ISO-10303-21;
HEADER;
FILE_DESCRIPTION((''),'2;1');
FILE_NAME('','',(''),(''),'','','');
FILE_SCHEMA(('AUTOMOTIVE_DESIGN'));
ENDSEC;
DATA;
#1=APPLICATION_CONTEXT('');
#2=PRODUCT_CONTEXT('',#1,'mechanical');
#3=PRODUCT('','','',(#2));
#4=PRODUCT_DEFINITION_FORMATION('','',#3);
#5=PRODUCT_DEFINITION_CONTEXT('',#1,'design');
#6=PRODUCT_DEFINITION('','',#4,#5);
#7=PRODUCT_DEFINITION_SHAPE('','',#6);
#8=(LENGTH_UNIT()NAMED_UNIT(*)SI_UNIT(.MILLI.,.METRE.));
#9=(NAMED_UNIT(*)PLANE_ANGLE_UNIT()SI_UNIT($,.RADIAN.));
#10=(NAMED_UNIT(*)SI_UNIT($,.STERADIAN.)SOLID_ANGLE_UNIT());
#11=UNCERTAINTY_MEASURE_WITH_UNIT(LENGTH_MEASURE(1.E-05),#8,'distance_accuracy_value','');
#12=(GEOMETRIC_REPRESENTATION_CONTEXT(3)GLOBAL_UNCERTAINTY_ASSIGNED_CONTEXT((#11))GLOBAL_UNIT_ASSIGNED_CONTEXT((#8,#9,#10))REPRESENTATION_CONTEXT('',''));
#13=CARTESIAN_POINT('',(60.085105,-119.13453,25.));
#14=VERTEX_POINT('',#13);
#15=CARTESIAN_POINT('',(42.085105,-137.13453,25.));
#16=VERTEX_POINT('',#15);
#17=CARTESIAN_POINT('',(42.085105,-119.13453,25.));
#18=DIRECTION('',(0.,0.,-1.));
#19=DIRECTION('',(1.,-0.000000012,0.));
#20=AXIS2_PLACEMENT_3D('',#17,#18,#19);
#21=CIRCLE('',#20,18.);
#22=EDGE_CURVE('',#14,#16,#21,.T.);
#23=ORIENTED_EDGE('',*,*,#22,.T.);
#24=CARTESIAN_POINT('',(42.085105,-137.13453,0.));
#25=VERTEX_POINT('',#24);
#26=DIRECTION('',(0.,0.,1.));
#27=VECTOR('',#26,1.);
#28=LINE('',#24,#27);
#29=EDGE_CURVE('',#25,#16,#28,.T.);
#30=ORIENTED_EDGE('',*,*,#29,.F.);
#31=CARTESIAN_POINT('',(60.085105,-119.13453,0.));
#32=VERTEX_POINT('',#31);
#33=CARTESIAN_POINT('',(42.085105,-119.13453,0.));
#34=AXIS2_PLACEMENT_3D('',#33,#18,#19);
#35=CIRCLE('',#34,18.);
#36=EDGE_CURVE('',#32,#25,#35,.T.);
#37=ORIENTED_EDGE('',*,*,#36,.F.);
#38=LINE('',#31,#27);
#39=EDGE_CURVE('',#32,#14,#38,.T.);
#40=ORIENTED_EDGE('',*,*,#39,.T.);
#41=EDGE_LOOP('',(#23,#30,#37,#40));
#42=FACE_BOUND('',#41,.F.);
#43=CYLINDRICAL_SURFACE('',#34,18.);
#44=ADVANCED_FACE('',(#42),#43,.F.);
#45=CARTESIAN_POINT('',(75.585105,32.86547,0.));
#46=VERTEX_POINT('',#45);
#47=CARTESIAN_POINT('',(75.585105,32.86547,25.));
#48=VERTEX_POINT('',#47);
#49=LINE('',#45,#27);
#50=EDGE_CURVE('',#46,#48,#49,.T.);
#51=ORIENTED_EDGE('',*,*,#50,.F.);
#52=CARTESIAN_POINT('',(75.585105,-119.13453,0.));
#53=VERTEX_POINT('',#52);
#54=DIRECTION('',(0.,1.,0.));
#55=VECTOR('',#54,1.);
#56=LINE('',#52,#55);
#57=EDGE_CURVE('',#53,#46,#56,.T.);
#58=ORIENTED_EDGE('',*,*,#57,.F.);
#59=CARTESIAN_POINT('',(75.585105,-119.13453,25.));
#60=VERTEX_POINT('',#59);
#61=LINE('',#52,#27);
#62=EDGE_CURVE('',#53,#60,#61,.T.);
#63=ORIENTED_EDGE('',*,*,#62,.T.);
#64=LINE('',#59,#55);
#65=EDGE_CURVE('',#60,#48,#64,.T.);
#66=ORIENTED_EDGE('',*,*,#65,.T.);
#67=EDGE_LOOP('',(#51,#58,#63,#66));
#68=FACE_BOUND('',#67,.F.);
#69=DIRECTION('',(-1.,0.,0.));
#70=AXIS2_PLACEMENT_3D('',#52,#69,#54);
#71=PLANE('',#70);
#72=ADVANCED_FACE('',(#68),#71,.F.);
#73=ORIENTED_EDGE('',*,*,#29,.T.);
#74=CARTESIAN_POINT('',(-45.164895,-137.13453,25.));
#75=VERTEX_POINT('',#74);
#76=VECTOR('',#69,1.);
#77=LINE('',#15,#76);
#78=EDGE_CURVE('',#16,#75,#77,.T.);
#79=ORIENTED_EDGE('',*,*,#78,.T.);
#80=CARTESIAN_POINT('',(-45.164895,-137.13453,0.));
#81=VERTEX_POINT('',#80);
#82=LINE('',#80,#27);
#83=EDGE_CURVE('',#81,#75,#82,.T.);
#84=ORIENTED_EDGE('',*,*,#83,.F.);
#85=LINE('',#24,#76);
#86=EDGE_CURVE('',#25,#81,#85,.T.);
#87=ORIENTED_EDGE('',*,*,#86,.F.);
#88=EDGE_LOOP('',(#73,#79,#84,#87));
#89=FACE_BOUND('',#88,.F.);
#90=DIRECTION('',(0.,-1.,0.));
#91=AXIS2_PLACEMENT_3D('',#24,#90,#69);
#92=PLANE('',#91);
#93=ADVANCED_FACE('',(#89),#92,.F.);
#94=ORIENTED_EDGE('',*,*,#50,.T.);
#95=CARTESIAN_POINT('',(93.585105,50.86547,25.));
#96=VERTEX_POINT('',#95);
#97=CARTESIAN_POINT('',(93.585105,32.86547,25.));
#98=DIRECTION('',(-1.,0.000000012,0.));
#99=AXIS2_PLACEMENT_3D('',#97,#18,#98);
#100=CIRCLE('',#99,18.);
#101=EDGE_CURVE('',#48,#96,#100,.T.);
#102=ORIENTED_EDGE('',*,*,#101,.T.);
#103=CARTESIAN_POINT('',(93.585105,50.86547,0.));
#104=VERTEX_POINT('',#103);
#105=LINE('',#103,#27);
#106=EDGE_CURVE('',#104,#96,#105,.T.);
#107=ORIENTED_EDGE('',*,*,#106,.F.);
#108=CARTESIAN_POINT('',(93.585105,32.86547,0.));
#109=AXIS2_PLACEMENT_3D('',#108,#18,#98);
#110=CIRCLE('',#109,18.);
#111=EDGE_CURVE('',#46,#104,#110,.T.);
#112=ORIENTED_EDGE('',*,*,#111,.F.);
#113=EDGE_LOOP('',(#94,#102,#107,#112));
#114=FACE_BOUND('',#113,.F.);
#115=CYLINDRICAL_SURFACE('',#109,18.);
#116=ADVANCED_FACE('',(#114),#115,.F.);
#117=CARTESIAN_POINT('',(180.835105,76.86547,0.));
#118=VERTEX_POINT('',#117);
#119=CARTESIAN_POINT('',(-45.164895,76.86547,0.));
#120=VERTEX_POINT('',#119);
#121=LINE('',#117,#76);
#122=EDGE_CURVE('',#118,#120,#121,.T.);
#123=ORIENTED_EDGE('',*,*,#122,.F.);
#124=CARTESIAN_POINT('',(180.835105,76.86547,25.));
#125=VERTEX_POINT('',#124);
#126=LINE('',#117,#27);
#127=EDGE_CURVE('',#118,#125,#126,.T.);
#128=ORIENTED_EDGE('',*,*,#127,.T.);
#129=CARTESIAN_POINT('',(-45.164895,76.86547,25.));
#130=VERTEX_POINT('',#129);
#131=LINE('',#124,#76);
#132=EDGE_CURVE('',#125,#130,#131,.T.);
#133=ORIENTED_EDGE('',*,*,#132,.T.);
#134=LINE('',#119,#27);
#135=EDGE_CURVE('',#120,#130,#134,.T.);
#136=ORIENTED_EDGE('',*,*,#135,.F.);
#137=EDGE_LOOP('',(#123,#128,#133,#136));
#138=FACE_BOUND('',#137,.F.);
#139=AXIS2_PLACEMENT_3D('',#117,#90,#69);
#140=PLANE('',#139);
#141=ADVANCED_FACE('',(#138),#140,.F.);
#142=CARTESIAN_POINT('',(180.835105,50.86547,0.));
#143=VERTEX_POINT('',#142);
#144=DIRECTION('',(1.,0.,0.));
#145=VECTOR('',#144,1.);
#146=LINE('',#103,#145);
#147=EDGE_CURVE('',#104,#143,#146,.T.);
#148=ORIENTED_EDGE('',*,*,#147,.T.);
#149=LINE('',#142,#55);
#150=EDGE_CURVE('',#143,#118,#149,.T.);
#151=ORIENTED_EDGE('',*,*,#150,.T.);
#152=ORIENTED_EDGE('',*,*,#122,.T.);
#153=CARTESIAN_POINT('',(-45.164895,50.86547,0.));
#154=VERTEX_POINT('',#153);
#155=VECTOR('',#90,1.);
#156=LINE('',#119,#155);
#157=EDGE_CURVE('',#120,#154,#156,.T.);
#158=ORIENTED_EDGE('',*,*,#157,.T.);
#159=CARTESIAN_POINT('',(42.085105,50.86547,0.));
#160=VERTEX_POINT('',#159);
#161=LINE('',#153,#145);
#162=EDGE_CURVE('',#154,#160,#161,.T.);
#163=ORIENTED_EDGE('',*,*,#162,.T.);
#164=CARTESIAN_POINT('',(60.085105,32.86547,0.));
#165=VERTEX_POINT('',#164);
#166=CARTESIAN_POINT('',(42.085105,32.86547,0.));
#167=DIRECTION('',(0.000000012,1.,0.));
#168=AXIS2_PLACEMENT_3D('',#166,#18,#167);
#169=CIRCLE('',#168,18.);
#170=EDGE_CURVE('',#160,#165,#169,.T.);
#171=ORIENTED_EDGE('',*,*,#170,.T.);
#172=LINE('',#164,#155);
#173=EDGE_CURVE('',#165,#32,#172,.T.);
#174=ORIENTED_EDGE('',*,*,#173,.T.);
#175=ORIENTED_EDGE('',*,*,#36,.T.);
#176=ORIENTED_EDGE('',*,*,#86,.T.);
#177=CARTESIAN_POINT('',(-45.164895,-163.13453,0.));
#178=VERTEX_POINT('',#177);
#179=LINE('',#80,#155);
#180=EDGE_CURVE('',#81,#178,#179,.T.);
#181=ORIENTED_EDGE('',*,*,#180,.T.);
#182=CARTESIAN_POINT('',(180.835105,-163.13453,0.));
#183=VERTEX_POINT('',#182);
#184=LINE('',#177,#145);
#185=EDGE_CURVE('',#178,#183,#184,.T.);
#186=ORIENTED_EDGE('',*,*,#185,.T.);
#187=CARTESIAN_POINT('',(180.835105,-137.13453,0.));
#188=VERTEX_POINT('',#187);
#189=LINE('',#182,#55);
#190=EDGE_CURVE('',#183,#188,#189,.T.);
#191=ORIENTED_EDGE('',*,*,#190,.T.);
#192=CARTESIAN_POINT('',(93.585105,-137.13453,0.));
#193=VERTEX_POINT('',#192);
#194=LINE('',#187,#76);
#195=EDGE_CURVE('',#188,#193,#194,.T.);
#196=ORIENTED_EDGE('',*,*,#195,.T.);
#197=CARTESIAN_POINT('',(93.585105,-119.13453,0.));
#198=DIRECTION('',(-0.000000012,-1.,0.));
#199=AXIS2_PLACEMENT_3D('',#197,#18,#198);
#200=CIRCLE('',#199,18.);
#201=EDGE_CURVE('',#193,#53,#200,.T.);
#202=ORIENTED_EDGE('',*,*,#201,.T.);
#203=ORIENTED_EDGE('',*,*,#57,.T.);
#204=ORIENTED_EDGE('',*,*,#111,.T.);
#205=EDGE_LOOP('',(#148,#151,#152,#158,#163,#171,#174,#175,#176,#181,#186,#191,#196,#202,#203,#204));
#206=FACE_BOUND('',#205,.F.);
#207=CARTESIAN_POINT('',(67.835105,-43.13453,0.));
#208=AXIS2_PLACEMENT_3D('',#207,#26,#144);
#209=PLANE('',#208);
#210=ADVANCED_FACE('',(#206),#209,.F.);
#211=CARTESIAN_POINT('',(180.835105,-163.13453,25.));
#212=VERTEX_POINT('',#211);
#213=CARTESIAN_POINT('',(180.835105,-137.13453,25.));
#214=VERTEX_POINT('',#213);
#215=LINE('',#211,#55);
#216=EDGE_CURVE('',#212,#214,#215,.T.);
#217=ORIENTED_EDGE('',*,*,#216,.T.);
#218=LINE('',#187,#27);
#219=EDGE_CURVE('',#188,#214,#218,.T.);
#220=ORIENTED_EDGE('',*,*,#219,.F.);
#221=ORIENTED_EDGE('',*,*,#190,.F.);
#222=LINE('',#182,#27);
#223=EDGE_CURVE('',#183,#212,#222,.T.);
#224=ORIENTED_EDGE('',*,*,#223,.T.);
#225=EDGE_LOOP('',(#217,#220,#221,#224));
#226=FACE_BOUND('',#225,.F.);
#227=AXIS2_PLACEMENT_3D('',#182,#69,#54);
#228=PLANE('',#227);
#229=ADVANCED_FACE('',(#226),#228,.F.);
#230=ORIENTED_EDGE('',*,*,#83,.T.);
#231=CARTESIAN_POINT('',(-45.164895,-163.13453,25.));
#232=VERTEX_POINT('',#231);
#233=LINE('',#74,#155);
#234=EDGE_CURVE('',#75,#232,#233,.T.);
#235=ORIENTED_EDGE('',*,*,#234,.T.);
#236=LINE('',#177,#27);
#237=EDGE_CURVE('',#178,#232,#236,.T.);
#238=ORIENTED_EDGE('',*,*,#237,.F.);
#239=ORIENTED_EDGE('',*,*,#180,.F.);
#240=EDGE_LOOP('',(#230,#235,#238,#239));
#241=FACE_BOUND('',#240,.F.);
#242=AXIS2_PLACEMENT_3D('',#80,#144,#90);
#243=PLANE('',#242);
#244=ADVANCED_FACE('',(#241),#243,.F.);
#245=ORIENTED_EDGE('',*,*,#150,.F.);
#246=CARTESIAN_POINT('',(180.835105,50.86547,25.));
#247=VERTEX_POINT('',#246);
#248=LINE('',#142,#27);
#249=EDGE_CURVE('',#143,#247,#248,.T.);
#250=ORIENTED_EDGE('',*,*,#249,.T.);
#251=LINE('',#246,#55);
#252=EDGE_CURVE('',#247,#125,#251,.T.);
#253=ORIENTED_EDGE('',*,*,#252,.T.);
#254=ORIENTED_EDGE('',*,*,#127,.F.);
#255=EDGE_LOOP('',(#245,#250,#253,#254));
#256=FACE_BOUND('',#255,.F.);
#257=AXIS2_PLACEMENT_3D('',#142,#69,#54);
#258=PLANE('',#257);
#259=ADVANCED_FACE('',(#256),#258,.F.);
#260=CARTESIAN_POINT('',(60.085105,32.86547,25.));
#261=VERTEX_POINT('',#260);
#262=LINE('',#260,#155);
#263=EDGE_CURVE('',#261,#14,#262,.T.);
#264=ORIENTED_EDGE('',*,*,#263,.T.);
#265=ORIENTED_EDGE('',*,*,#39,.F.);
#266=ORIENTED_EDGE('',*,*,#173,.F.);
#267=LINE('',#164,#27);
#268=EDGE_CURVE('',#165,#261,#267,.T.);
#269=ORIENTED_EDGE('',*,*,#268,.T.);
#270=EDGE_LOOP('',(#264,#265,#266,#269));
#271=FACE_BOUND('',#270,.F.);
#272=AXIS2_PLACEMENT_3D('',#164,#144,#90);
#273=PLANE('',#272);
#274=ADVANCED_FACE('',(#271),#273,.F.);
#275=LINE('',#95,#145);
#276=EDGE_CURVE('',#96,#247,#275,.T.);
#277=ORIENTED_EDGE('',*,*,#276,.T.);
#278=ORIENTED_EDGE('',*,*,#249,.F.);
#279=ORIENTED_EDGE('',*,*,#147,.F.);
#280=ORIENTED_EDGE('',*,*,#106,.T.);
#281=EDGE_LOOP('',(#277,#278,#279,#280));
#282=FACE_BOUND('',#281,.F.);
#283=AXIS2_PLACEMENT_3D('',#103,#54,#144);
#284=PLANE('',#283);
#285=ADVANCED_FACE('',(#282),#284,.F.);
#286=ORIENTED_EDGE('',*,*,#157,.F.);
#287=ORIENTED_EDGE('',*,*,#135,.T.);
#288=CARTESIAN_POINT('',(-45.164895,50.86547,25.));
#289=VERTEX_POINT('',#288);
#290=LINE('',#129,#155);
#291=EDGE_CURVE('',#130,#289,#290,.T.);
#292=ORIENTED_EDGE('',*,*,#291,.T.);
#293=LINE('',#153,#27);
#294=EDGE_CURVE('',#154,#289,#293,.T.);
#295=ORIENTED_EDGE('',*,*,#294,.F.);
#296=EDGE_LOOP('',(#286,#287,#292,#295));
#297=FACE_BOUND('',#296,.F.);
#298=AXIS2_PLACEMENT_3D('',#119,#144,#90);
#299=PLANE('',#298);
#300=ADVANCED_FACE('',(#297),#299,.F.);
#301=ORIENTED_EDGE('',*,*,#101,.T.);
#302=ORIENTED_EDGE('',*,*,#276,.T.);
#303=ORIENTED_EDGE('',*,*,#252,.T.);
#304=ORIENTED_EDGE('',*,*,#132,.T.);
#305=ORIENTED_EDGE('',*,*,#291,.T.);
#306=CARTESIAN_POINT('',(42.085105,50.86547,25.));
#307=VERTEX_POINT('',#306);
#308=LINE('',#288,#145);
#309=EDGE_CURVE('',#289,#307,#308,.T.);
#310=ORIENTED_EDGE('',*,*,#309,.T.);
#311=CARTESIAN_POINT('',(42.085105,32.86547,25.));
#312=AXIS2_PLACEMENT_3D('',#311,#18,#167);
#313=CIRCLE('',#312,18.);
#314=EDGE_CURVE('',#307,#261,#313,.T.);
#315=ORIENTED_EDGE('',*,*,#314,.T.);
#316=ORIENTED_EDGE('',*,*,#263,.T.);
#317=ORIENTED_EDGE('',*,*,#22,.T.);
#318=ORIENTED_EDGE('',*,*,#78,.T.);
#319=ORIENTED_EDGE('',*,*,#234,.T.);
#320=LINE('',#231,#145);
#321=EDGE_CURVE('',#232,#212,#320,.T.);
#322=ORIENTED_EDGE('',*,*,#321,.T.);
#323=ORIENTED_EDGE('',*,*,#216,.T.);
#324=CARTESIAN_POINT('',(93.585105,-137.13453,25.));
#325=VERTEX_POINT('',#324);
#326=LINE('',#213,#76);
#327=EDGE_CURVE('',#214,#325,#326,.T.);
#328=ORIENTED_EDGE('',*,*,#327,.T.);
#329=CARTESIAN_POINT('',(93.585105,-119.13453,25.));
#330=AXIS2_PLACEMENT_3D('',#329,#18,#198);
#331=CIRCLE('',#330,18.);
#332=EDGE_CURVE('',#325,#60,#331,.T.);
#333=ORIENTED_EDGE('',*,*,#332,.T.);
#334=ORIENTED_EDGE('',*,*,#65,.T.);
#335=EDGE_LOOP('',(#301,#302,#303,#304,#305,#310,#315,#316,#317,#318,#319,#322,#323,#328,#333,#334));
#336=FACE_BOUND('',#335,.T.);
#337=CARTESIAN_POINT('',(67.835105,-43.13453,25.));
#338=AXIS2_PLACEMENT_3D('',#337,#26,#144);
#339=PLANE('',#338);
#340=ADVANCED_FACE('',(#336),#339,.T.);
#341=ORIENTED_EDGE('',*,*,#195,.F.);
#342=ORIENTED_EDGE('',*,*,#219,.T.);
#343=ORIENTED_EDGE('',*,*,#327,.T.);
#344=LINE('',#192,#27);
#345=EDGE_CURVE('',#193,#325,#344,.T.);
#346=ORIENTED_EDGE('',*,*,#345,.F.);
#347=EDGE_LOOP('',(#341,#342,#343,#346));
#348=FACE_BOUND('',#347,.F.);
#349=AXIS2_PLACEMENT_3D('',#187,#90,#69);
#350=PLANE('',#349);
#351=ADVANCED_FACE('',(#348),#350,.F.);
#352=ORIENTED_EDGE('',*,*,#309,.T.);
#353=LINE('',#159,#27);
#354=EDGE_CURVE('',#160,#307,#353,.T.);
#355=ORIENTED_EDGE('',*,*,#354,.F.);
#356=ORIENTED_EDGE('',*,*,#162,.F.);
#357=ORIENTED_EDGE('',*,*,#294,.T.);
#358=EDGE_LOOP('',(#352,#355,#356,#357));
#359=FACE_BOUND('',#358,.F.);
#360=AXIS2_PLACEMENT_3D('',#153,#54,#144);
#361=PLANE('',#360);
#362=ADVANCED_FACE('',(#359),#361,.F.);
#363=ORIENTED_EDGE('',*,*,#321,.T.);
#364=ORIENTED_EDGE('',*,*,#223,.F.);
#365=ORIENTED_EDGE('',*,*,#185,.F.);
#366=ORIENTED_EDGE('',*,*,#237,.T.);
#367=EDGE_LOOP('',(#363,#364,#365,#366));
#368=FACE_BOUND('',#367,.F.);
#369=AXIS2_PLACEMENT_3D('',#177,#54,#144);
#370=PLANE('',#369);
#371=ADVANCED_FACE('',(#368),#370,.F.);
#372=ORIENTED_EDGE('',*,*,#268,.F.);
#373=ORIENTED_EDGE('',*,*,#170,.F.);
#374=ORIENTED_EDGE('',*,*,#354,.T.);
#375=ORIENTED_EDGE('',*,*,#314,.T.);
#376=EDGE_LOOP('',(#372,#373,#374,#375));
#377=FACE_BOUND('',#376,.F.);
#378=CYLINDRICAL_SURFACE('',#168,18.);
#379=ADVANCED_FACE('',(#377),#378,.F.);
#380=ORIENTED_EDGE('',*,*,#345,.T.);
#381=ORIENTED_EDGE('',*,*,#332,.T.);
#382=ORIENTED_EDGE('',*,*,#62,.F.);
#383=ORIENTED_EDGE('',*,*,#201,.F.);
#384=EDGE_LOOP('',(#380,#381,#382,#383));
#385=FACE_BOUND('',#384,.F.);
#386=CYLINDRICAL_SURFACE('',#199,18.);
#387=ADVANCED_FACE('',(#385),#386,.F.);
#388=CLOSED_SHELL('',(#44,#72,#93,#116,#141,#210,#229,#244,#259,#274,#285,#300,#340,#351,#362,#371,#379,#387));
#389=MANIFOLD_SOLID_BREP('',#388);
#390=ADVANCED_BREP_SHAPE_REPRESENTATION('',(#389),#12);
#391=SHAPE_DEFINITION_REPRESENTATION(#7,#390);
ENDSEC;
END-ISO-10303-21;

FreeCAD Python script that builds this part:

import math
import FreeCAD as App
import Part
import Sketcher

doc = App.newDocument("Part")
body = doc.addObject("PartDesign::Body", "Body")

sketch1 = body.newObject("Sketcher::SketchObject", "Sketch")
sketch1.AttachmentSupport = (doc.getObject("XY_Plane"), [""])
sketch1.MapMode = "FlatFace"
sketch1.addGeometry(Part.LineSegment(App.Vector(181, 77, 0), App.Vector(-45, 77, 0)), False)
sketch1.addGeometry(Part.LineSegment(App.Vector(-45, 77, 0), App.Vector(-45, 51, 0)), False)
sketch1.addGeometry(Part.LineSegment(App.Vector(-45, 51, 0), App.Vector(42, 51, 0)), False)
sketch1.addGeometry(Part.ArcOfCircle(Part.Circle(App.Vector(42, 33, 0), App.Vector(0, 0, 1), 18), math.radians(0), math.radians(90)), False)
sketch1.addGeometry(Part.LineSegment(App.Vector(60, 33, 0), App.Vector(60, -119, 0)), False)
sketch1.addGeometry(Part.ArcOfCircle(Part.Circle(App.Vector(42, -119, 0), App.Vector(0, 0, 1), 18), math.radians(-90), math.radians(0)), False)
sketch1.addGeometry(Part.LineSegment(App.Vector(42, -137, 0), App.Vector(-45, -137, 0)), False)
sketch1.addGeometry(Part.LineSegment(App.Vector(-45, -137, 0), App.Vector(-45, -163, 0)), False)
sketch1.addGeometry(Part.LineSegment(App.Vector(-45, -163, 0), App.Vector(181, -163, 0)), False)
sketch1.addGeometry(Part.LineSegment(App.Vector(181, -163, 0), App.Vector(181, -137, 0)), False)
sketch1.addGeometry(Part.LineSegment(App.Vector(181, -137, 0), App.Vector(94, -137, 0)), False)
sketch1.addGeometry(Part.ArcOfCircle(Part.Circle(App.Vector(94, -119, 0), App.Vector(0, 0, 1), 18), math.radians(-180), math.radians(-90)), False)
sketch1.addGeometry(Part.LineSegment(App.Vector(76, -119, 0), App.Vector(76, 33, 0)), False)
sketch1.addGeometry(Part.ArcOfCircle(Part.Circle(App.Vector(94, 33, 0), App.Vector(0, 0, 1), 18), math.radians(90), math.radians(180)), False)
sketch1.addGeometry(Part.LineSegment(App.Vector(94, 51, 0), App.Vector(181, 51, 0)), False)
sketch1.addGeometry(Part.LineSegment(App.Vector(181, 51, 0), App.Vector(181, 77, 0)), False)
sketch1.addConstraint(Sketcher.Constraint("Coincident", 0, 2, 1, 1))
sketch1.addConstraint(Sketcher.Constraint("Coincident", 1, 2, 2, 1))
sketch1.addConstraint(Sketcher.Constraint("Tangent", 2, 2, 3, 2))
sketch1.addConstraint(Sketcher.Constraint("Tangent", 3, 1, 4, 1))
sketch1.addConstraint(Sketcher.Constraint("Tangent", 4, 2, 5, 2))
sketch1.addConstraint(Sketcher.Constraint("Tangent", 5, 1, 6, 1))
sketch1.addConstraint(Sketcher.Constraint("Coincident", 6, 2, 7, 1))
sketch1.addConstraint(Sketcher.Constraint("Coincident", 7, 2, 8, 1))
sketch1.addConstraint(Sketcher.Constraint("Coincident", 8, 2, 9, 1))
sketch1.addConstraint(Sketcher.Constraint("Coincident", 9, 2, 10, 1))
sketch1.addConstraint(Sketcher.Constraint("Tangent", 10, 2, 11, 2))
sketch1.addConstraint(Sketcher.Constraint("Tangent", 11, 1, 12, 1))
sketch1.addConstraint(Sketcher.Constraint("Tangent", 12, 2, 13, 2))
sketch1.addConstraint(Sketcher.Constraint("Tangent", 13, 1, 14, 1))
sketch1.addConstraint(Sketcher.Constraint("Coincident", 14, 2, 15, 1))
sketch1.addConstraint(Sketcher.Constraint("Coincident", 15, 2, 0, 1))
sketch1.addConstraint(Sketcher.Constraint("Horizontal", 0))
sketch1.addConstraint(Sketcher.Constraint("Vertical", 1))
sketch1.addConstraint(Sketcher.Constraint("Horizontal", 2))
sketch1.addConstraint(Sketcher.Constraint("Vertical", 4))
sketch1.addConstraint(Sketcher.Constraint("Horizontal", 6))
sketch1.addConstraint(Sketcher.Constraint("Vertical", 7))
sketch1.addConstraint(Sketcher.Constraint("Horizontal", 8))
sketch1.addConstraint(Sketcher.Constraint("Vertical", 9))
sketch1.addConstraint(Sketcher.Constraint("Horizontal", 10))
sketch1.addConstraint(Sketcher.Constraint("Vertical", 12))
sketch1.addConstraint(Sketcher.Constraint("Horizontal", 14))
sketch1.addConstraint(Sketcher.Constraint("Vertical", 15))
sketch1.addConstraint(Sketcher.Constraint("Equal", 3, 5))
sketch1.addConstraint(Sketcher.Constraint("Equal", 5, 11))
sketch1.addConstraint(Sketcher.Constraint("Equal", 11, 13))
sketch1.addConstraint(Sketcher.Constraint("Horizontal", 5, 3, 11, 3))
sketch1.addConstraint(Sketcher.Constraint("Horizontal", 3, 3, 13, 3))
sketch1.addConstraint(Sketcher.Constraint("Vertical", 1, 2, 6, 2))
sketch1.addConstraint(Sketcher.Constraint("Vertical", 9, 2, 14, 2))
sketch1.addConstraint(Sketcher.Constraint("Equal", 6, 10))
sketch1.addConstraint(Sketcher.Constraint("Equal", 1, 7))
sketch1.addConstraint(Sketcher.Constraint("Radius", 3, 18.0))
sketch1.addConstraint(Sketcher.Constraint("DistanceX", 0, 2, 0, 1, 226.0))
sketch1.addConstraint(Sketcher.Constraint("DistanceY", 1, 2, 1, 1, 26.0))
sketch1.addConstraint(Sketcher.Constraint("DistanceY", 4, 2, 4, 1, 152.0))
sketch1.addConstraint(Sketcher.Constraint("DistanceX", 2, 1, 2, 2, 87.25))
sketch1.addConstraint(Sketcher.Constraint("DistanceY", -1, 1, 3, 3, 32.86547))
sketch1.addConstraint(Sketcher.Constraint("DistanceX", -1, 1, 3, 3, 42.085105))
pad1 = body.newObject("PartDesign::Pad", "Pad")
pad1.Profile = sketch1
pad1.Length = 25

doc.recompute()
